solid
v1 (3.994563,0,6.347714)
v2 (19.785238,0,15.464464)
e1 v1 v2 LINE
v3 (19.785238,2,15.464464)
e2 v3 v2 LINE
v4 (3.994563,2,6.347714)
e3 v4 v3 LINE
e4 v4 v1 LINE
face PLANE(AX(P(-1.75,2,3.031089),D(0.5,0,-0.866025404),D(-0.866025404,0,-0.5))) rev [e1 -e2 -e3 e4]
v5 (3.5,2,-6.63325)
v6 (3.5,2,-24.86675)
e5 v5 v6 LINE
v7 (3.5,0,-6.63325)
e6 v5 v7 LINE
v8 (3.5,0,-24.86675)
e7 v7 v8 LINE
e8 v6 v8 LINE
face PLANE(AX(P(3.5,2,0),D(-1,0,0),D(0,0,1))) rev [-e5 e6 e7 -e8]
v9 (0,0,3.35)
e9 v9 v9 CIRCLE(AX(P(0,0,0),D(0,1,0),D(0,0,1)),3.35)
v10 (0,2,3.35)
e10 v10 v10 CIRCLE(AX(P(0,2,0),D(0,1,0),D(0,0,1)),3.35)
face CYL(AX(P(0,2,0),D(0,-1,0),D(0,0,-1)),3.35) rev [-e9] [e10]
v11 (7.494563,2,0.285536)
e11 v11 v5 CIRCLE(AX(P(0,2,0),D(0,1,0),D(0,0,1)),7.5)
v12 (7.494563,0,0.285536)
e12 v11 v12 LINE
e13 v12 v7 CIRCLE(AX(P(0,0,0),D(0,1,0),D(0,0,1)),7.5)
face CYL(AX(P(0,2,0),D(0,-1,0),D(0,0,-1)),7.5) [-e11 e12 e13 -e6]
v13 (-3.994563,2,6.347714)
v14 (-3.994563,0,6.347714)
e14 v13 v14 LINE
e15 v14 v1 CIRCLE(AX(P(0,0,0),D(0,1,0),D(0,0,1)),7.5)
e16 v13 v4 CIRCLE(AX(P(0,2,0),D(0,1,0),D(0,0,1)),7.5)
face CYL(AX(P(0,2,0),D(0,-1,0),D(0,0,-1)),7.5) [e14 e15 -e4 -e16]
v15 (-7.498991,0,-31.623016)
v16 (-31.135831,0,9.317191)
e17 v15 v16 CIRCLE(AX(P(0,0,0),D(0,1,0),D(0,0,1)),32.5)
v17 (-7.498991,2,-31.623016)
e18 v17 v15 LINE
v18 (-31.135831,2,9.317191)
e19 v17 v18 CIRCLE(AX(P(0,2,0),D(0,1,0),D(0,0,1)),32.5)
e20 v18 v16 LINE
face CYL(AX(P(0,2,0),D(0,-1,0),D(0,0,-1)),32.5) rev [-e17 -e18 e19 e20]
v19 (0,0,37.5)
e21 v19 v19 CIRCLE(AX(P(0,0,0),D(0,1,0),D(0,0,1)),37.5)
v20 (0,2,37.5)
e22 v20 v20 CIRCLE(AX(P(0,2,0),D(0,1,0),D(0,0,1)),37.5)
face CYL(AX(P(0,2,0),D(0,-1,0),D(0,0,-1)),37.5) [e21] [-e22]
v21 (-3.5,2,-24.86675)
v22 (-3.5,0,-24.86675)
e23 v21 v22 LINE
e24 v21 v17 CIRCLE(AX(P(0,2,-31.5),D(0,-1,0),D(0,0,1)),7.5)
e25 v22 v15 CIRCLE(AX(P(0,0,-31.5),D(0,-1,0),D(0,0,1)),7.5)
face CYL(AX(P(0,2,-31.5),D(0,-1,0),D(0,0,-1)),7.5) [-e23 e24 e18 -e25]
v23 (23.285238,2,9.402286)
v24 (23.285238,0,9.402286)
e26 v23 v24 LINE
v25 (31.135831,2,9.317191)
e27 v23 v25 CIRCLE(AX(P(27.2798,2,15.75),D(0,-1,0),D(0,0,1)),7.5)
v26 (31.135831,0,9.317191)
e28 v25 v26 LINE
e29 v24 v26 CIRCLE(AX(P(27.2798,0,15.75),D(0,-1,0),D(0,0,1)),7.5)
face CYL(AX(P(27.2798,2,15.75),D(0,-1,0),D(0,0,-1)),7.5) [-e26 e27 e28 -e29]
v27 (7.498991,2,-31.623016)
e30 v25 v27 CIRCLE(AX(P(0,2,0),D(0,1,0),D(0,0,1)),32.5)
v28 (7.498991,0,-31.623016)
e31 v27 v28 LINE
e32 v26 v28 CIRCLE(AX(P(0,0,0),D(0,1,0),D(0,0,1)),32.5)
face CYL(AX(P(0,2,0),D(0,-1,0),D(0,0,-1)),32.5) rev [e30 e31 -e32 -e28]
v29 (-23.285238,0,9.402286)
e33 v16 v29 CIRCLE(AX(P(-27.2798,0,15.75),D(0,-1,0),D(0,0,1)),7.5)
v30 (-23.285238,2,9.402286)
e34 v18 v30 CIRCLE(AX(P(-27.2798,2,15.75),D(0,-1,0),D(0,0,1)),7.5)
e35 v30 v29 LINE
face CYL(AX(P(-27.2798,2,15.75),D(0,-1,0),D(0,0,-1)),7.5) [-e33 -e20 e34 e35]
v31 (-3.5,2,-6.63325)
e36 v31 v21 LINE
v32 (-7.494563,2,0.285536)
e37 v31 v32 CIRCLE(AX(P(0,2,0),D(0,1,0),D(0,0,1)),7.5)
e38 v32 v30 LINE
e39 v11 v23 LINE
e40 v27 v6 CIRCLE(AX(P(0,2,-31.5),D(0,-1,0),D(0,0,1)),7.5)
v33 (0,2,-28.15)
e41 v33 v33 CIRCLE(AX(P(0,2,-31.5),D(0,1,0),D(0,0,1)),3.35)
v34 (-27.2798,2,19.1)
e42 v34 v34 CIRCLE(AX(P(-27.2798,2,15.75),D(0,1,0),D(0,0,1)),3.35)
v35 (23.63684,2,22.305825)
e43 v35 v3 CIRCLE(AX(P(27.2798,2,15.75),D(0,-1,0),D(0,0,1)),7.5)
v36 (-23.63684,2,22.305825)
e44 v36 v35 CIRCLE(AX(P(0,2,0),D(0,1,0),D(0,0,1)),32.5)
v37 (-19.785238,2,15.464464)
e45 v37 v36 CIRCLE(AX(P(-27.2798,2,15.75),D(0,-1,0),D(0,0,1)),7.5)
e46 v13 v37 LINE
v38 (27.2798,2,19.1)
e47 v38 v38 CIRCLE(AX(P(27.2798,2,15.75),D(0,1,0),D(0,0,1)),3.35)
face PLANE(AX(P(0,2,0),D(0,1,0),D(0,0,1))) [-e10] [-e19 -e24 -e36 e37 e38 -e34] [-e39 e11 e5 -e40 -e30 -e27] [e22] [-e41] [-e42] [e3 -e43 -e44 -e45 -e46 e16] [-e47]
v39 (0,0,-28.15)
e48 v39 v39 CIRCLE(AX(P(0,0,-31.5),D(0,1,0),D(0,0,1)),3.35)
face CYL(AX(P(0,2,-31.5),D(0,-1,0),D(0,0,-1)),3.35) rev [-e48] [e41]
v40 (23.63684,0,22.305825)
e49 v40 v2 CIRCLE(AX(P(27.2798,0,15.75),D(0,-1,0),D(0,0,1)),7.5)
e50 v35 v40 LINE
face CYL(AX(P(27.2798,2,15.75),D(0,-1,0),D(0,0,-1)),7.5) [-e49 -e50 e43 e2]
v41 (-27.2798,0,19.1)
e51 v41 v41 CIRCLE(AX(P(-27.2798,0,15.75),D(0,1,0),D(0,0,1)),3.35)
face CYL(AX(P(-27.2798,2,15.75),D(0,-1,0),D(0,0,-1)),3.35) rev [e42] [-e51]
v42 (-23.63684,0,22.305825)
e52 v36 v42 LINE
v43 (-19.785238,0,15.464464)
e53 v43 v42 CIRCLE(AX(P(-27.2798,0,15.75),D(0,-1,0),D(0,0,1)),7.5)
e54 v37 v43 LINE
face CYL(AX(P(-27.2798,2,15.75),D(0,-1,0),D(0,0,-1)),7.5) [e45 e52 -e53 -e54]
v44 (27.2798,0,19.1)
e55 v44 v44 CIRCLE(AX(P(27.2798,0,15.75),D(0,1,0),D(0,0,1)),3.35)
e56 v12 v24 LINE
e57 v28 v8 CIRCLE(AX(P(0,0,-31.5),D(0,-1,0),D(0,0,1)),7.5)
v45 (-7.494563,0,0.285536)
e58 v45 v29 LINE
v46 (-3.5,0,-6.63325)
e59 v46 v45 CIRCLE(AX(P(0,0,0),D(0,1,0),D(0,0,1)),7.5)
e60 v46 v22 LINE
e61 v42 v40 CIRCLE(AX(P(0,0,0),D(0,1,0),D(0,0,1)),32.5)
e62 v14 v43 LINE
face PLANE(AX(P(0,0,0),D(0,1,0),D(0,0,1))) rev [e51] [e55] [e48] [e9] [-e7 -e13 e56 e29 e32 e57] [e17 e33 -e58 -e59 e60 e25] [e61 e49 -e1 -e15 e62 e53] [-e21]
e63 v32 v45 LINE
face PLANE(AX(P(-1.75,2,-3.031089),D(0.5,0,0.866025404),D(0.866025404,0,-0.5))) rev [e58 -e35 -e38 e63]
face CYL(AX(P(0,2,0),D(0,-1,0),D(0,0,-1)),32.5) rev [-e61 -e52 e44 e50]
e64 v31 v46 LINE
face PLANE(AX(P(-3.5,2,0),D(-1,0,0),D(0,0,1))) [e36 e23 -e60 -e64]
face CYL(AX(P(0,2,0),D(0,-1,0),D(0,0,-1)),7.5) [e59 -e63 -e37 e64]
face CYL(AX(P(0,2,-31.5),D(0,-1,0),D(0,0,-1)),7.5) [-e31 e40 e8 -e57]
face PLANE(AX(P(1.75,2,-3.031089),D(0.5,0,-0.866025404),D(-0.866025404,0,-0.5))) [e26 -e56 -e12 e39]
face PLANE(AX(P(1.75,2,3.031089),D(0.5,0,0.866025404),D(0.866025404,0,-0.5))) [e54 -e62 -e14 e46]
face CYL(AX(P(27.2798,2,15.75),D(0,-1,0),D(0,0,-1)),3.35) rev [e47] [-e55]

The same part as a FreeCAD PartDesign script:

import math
import FreeCAD as App
import Part
import Sketcher

V = App.Vector
Q = App.Units.Quantity

doc = App.newDocument("Part")
body = doc.addObject("PartDesign::Body", "Body")

# Sketch on XZ plane
sketch1 = body.newObject("Sketcher::SketchObject", "Sketch")
sketch1.AttachmentSupport = (doc.getObject("XZ_Plane"), [""])
sketch1.MapMode = "FlatFace"
sketch1.addGeometry(Part.Circle(V(0, 0, 0), V(0, 0, 1), 37.5), False)
sketch1.addGeometry(Part.Circle(V(0, -31.5, 0), V(0, 0, 1), 3.4), False)
sketch1.addGeometry(Part.Circle(V(-27.3, 15.8, 0), V(0, 0, 1), 3.4), False)
sketch1.addGeometry(Part.ArcOfCircle(Part.Circle(V(0, 0, 0), V(0, 0, 1), 32.5), math.radians(163), math.radians(257)), False)
sketch1.addGeometry(Part.ArcOfCircle(Part.Circle(V(0, -31.5, 0), V(0, 0, 1), 7.5), math.radians(-1), math.radians(181)), False)
sketch1.addGeometry(Part.ArcOfCircle(Part.Circle(V(0, 0, 0), V(0, 0, 1), 32.5), math.radians(-77), math.radians(17)), False)
sketch1.addGeometry(Part.ArcOfCircle(Part.Circle(V(27.3, 15.8, 0), V(0, 0, 1), 7.5), math.radians(119), math.radians(301)), False)
sketch1.addGeometry(Part.ArcOfCircle(Part.Circle(V(0, 0, 0), V(0, 0, 1), 32.5), math.radians(43), math.radians(137)), False)
sketch1.addGeometry(Part.ArcOfCircle(Part.Circle(V(-27.3, 15.8, 0), V(0, 0, 1), 7.5), math.radians(-121), math.radians(61)), False)
sketch1.addGeometry(Part.Circle(V(27.3, 15.8, 0), V(0, 0, 1), 3.4), False)
sketch1.addConstraint(Sketcher.Constraint("Coincident", 3, 2, 4, 2))
sketch1.addConstraint(Sketcher.Constraint("Coincident", 4, 1, 5, 1))
sketch1.addConstraint(Sketcher.Constraint("Coincident", 5, 2, 6, 2))
sketch1.addConstraint(Sketcher.Constraint("Coincident", 6, 1, 7, 1))
sketch1.addConstraint(Sketcher.Constraint("Coincident", 7, 2, 8, 2))
sketch1.addConstraint(Sketcher.Constraint("Coincident", 8, 1, 3, 1))
sketch1.addConstraint(Sketcher.Constraint("Coincident", 0, 3, -1, 1))
sketch1.addConstraint(Sketcher.Constraint("Coincident", 3, 3, -1, 1))
sketch1.addConstraint(Sketcher.Constraint("Coincident", 5, 3, -1, 1))
sketch1.addConstraint(Sketcher.Constraint("Coincident", 7, 3, -1, 1))
sketch1.addConstraint(Sketcher.Constraint("Coincident", 4, 3, 1, 3))
sketch1.addConstraint(Sketcher.Constraint("Coincident", 8, 3, 2, 3))
sketch1.addConstraint(Sketcher.Constraint("Coincident", 9, 3, 6, 3))
sketch1.addConstraint(Sketcher.Constraint("Equal", 1, 2))
sketch1.addConstraint(Sketcher.Constraint("Equal", 3, 5))
sketch1.addConstraint(Sketcher.Constraint("Equal", 4, 6))
sketch1.addConstraint(Sketcher.Constraint("Equal", 5, 7))
sketch1.addConstraint(Sketcher.Constraint("Equal", 6, 8))
sketch1.addConstraint(Sketcher.Constraint("Equal", 2, 9))
sketch1.addConstraint(Sketcher.Constraint("Symmetric", 2, 3, 6, 3, -2))
sketch1.addConstraint(Sketcher.Constraint("PointOnObject", 1, 3, -2))
sketch1.addConstraint(Sketcher.Constraint("Diameter", 0, Q("75 mm")))
sketch1.addConstraint(Sketcher.Constraint("Diameter", 1, Q("6.7 mm")))
sketch1.addConstraint(Sketcher.Constraint("Radius", 3, Q("32.5 mm")))
sketch1.addConstraint(Sketcher.Constraint("Radius", 4, Q("7.5 mm")))
sketch1.addConstraint(Sketcher.Constraint("DistanceY", 1, 3, -1, 1, Q("31.5 mm")))
sketch1.addConstraint(Sketcher.Constraint("DistanceY", -1, 1, 2, 3, Q("15.75 mm")))
sketch1.addConstraint(Sketcher.Constraint("DistanceX", 2, 3, -1, 1, Q("27.2798 mm")))
pad1 = body.newObject("PartDesign::Pad", "Pad")
pad1.Profile = sketch1
pad1.Length = 2
pad1.Reversed = True

# Sketch on XZ plane
sketch2 = body.newObject("Sketcher::SketchObject", "Sketch001")
sketch2.AttachmentSupport = (doc.getObject("XZ_Plane"), [""])
sketch2.MapMode = "FlatFace"
sketch2.addGeometry(Part.LineSegment(V(-3.5, -31.5, 0), V(-3.5, -6.63, 0)), False)
sketch2.addGeometry(Part.ArcOfCircle(Part.Circle(V(0, 0, 0), V(0, 0, 1), 7.5), math.radians(178), math.radians(242)), False)
sketch2.addGeometry(Part.LineSegment(V(-7.49, 0.29, 0), V(-29.03, 12.72, 0)), False)
sketch2.addGeometry(Part.LineSegment(V(-29.03, 12.72, 0), V(-28.95, 12.85, 0)), False)
sketch2.addGeometry(Part.ArcOfCircle(Part.Circle(V(-27.28, 15.75, 0), V(0, 0, 1), 3.35), math.radians(-120), math.radians(60)), False)
sketch2.addGeometry(Part.LineSegment(V(-25.6, 18.65, 0), V(-25.53, 18.78, 0)), False)
sketch2.addGeometry(Part.LineSegment(V(-25.53, 18.78, 0), V(-3.99, 6.35, 0)), False)
sketch2.addGeometry(Part.ArcOfCircle(Part.Circle(V(0, 0, 0), V(0, 0, 1), 7.5), math.radians(58), math.radians(122)), False)
sketch2.addGeometry(Part.LineSegment(V(3.99, 6.35, 0), V(25.53, 18.78, 0)), False)
sketch2.addGeometry(Part.LineSegment(V(25.53, 18.78, 0), V(25.6, 18.65, 0)), False)
sketch2.addGeometry(Part.ArcOfCircle(Part.Circle(V(27.28, 15.75, 0), V(0, 0, 1), 3.35), math.radians(120), math.radians(300)), False)
sketch2.addGeometry(Part.LineSegment(V(28.95, 12.85, 0), V(29.03, 12.72, 0)), False)
sketch2.addGeometry(Part.LineSegment(V(29.03, 12.72, 0), V(7.49, 0.29, 0)), False)
sketch2.addGeometry(Part.ArcOfCircle(Part.Circle(V(0, 0, 0), V(0, 0, 1), 7.5), math.radians(-62), math.radians(2)), False)
sketch2.addGeometry(Part.LineSegment(V(3.5, -6.63, 0), V(3.5, -31.5, 0)), False)
sketch2.addGeometry(Part.LineSegment(V(3.5, -31.5, 0), V(3.35, -31.5, 0)), False)
sketch2.addGeometry(Part.ArcOfCircle(Part.Circle(V(0, -31.5, 0), V(0, 0, 1), 3.35), math.radians(0), math.radians(180)), False)
sketch2.addGeometry(Part.LineSegment(V(-3.35, -31.5, 0), V(-3.5, -31.5, 0)), False)
sketch2.addGeometry(Part.ArcOfCircle(Part.Circle(V(0, 0, 0), V(0, 0, 1), 3.35), math.radians(60), math.radians(240)), False)
sketch2.addGeometry(Part.ArcOfCircle(Part.Circle(V(0, 0, 0), V(0, 0, 1), 3.35), math.radians(-120), math.radians(60)), False)
sketch2.addConstraint(Sketcher.Constraint("Coincident", 0, 2, 1, 2))
sketch2.addConstraint(Sketcher.Constraint("Coincident", 1, 1, 2, 1))
sketch2.addConstraint(Sketcher.Constraint("Coincident", 2, 2, 3, 1))
sketch2.addConstraint(Sketcher.Constraint("Coincident", 3, 2, 4, 1))
sketch2.addConstraint(Sketcher.Constraint("Coincident", 4, 2, 5, 1))
sketch2.addConstraint(Sketcher.Constraint("Coincident", 5, 2, 6, 1))
sketch2.addConstraint(Sketcher.Constraint("Coincident", 6, 2, 7, 2))
sketch2.addConstraint(Sketcher.Constraint("Coincident", 7, 1, 8, 1))
sketch2.addConstraint(Sketcher.Constraint("Coincident", 8, 2, 9, 1))
sketch2.addConstraint(Sketcher.Constraint("Coincident", 9, 2, 10, 1))
sketch2.addConstraint(Sketcher.Constraint("Coincident", 10, 2, 11, 1))
sketch2.addConstraint(Sketcher.Constraint("Coincident", 11, 2, 12, 1))
sketch2.addConstraint(Sketcher.Constraint("Coincident", 12, 2, 13, 2))
sketch2.addConstraint(Sketcher.Constraint("Coincident", 13, 1, 14, 1))
sketch2.addConstraint(Sketcher.Constraint("Coincident", 14, 2, 15, 1))
sketch2.addConstraint(Sketcher.Constraint("Coincident", 15, 2, 16, 1))
sketch2.addConstraint(Sketcher.Constraint("Coincident", 16, 2, 17, 1))
sketch2.addConstraint(Sketcher.Constraint("Coincident", 17, 2, 0, 1))
sketch2.addConstraint(Sketcher.Constraint("Tangent", 18, 1, 19, 2))
sketch2.addConstraint(Sketcher.Constraint("Coincident", 19, 1, 18, 2))
sketch2.addConstraint(Sketcher.Constraint("Vertical", 0))
sketch2.addConstraint(Sketcher.Constraint("Vertical", 14))
sketch2.addConstraint(Sketcher.Constraint("Horizontal", 15))
sketch2.addConstraint(Sketcher.Constraint("Horizontal", 17))
sketch2.addConstraint(Sketcher.Constraint("Coincident", 1, 3, -1, 1))
sketch2.addConstraint(Sketcher.Constraint("Coincident", 7, 3, -1, 1))
sketch2.addConstraint(Sketcher.Constraint("Coincident", 13, 3, -1, 1))
sketch2.addConstraint(Sketcher.Constraint("Coincident", 18, 3, -1, 1))
sketch2.addConstraint(Sketcher.Constraint("Equal", 1, 7))
sketch2.addConstraint(Sketcher.Constraint("Equal", 4, 10))
sketch2.addConstraint(Sketcher.Constraint("Equal", 7, 13))
sketch2.addConstraint(Sketcher.Constraint("Equal", 10, 16))
sketch2.addConstraint(Sketcher.Constraint("Equal", 16, 18))
sketch2.addConstraint(Sketcher.Constraint("Symmetric", 4, 3, 10, 3, -2))
sketch2.addConstraint(Sketcher.Constraint("Symmetric", 5, 2, 8, 2, -2))
sketch2.addConstraint(Sketcher.Constraint("Symmetric", 2, 2, 11, 2, -2))
sketch2.addConstraint(Sketcher.Constraint("Symmetric", 15, 2, 16, 2, -2))
sketch2.addConstraint(Sketcher.Constraint("Perpendicular", 2, 3))
sketch2.addConstraint(Sketcher.Constraint("Parallel", 3, 5))
sketch2.addConstraint(Sketcher.Constraint("Perpendicular", 5, 6))
sketch2.addConstraint(Sketcher.Constraint("Perpendicular", 8, 9))
sketch2.addConstraint(Sketcher.Constraint("Parallel", 9, 11))
sketch2.addConstraint(Sketcher.Constraint("Perpendicular", 11, 12))
sketch2.addConstraint(Sketcher.Constraint("Horizontal", 6, 2, 7, 1))
sketch2.addConstraint(Sketcher.Constraint("Horizontal", 0, 2, 13, 1))
sketch2.addConstraint(Sketcher.Constraint("Horizontal", 16, 3, 14, 2))
sketch2.addConstraint(Sketcher.Constraint("Equal", 3, 5))
sketch2.addConstraint(Sketcher.Constraint("Equal", 2, 6))
sketch2.addConstraint(Sketcher.Constraint("Radius", 1, Q("7.5 mm")))
sketch2.addConstraint(Sketcher.Constraint("Angle", 2, Q("150 deg")))
sketch2.addConstraint(Sketcher.Constraint("Radius", 4, Q("3.35 mm")))
sketch2.addConstraint(Sketcher.Constraint("DistanceX", 0, 2, 13, 1, Q("7 mm")))
sketch2.addConstraint(Sketcher.Constraint("DistanceY", 16, 3, -1, 1, Q("31.5 mm")))
sketch2.addConstraint(Sketcher.Constraint("DistanceX", 2, 2, 5, 2, Q("3.5 mm")))
sketch2.addConstraint(Sketcher.Constraint("Distance", 3, Q("0.15 mm")))
sketch2.addConstraint(Sketcher.Constraint("DistanceY", -1, 1, 4, 3, Q("15.75 mm")))
sketch2.addConstraint(Sketcher.Constraint("DistanceX", 2, 2, 4, 3, Q("1.75 mm")))
sketch2.addConstraint(Sketcher.Constraint("DistanceX", -1, 1, 18, 1, Q("1.675 mm")))
sketch2.addConstraint(Sketcher.Constraint("DistanceX", 19, 1, -1, 1, Q("1.675 mm")))
pad2 = body.newObject("PartDesign::Pad", "Pad001")
pad2.Profile = sketch2
pad2.Length = 2
pad2.Reversed = True

doc.recompute()
